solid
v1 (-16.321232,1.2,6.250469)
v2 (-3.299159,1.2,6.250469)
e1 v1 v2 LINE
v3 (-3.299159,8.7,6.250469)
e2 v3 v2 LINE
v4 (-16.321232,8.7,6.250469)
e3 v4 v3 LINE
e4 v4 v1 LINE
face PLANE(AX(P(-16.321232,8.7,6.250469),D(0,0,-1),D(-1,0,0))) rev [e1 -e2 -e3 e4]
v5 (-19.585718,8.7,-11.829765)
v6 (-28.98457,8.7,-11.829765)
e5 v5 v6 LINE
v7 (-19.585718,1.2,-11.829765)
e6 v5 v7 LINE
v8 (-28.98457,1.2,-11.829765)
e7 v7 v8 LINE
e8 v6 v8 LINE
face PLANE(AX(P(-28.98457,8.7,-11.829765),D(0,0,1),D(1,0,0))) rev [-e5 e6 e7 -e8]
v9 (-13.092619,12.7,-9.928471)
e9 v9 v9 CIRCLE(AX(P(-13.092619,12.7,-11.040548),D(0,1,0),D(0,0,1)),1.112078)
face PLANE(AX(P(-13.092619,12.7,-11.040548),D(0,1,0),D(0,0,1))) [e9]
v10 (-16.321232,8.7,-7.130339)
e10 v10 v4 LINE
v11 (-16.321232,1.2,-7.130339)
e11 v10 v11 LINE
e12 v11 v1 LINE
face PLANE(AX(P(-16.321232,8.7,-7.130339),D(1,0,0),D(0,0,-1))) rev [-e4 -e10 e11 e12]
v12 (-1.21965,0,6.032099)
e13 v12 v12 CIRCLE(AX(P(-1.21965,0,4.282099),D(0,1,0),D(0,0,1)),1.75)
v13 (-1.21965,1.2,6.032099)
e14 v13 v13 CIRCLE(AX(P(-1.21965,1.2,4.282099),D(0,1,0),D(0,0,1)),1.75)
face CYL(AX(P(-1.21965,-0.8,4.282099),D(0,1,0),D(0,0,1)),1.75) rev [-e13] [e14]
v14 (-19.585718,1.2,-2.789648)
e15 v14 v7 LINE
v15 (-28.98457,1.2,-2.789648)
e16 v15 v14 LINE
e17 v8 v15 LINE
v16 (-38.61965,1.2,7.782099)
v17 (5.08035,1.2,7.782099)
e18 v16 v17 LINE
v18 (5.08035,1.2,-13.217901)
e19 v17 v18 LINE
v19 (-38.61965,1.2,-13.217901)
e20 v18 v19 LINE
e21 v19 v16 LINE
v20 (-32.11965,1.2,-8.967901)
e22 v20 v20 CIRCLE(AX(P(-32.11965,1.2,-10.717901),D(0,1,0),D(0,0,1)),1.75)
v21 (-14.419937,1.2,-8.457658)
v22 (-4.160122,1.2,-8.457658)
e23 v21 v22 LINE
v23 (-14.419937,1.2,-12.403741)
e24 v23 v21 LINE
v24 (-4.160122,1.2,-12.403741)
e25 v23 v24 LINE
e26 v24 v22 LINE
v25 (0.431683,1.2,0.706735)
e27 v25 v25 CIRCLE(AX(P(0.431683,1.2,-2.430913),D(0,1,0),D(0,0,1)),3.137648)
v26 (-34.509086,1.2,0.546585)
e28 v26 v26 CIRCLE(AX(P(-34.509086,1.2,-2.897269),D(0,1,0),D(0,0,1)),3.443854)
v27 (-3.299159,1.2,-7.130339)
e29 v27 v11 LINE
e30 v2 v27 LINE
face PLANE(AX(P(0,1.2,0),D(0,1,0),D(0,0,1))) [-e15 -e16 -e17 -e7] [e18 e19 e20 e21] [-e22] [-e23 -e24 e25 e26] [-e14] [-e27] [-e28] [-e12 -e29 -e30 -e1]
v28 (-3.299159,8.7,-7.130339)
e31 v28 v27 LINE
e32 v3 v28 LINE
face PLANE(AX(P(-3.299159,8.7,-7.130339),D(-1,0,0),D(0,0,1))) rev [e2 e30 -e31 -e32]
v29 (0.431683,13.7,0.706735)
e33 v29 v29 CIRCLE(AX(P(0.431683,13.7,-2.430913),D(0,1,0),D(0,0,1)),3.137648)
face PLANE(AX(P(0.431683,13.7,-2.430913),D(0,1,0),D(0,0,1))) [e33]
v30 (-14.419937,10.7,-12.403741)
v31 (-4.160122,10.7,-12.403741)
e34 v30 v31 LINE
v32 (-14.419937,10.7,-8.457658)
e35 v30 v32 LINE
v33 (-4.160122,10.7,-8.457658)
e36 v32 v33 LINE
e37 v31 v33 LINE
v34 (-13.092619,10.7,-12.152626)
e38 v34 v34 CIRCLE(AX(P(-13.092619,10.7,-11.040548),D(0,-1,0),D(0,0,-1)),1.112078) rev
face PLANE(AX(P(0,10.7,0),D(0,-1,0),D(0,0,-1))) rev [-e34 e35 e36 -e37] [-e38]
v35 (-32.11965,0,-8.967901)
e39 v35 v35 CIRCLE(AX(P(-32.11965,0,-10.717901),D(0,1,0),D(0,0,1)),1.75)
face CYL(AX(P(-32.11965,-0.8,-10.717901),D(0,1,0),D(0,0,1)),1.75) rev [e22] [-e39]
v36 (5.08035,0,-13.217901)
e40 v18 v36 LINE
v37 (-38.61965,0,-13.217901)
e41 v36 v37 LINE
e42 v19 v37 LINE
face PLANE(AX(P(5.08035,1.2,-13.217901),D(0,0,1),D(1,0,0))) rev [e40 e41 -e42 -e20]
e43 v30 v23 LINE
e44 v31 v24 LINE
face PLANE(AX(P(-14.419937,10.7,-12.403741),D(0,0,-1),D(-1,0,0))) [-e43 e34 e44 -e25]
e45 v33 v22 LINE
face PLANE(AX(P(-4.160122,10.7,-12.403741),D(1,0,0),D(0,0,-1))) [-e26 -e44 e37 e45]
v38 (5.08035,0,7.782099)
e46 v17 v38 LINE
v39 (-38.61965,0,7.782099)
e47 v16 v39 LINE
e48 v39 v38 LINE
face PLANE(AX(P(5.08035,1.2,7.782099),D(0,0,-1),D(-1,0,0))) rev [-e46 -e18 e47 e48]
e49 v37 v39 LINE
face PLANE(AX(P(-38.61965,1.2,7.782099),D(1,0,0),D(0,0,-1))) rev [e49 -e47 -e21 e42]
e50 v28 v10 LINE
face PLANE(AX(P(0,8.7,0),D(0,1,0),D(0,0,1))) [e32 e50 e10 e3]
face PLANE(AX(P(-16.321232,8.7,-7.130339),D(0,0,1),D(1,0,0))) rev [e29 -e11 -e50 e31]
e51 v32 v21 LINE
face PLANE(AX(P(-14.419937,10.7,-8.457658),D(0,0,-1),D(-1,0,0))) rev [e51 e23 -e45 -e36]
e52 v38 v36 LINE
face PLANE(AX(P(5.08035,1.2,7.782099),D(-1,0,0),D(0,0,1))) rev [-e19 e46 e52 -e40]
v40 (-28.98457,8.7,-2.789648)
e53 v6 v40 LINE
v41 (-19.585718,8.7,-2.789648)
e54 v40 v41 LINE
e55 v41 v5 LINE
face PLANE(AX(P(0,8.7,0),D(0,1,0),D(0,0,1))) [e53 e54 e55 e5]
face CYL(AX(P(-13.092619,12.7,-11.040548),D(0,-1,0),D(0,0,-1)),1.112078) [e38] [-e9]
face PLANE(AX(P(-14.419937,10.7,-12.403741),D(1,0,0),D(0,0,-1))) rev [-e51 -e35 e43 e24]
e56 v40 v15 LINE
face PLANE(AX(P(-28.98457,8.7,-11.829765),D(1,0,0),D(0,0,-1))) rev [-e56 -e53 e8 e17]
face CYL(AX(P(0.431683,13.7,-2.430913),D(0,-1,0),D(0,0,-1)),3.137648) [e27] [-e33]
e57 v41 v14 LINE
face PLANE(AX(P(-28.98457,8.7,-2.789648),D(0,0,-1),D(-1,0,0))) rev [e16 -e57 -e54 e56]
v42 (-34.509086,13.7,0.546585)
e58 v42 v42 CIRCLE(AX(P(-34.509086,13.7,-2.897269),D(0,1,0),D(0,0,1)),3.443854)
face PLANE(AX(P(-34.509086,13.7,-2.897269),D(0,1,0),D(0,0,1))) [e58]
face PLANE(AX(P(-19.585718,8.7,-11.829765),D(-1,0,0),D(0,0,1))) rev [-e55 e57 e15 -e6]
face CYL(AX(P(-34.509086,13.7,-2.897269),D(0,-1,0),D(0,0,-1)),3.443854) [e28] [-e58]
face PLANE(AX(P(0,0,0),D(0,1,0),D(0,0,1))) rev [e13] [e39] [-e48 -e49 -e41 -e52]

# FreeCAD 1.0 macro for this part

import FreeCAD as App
import Part
import Sketcher

V = App.Vector

doc = App.newDocument("Part")
body = doc.addObject("PartDesign::Body", "Body")

# Sketch on XZ plane
sketch1 = doc.addObject("Sketcher::SketchObject", "Sketch")
body.addObject(sketch1)
sketch1.AttachmentSupport = (doc.XZ_Plane, [""])
sketch1.MapMode = "FlatFace"
sketch1.addGeometry([
    Part.LineSegment(V(-39, -13, 0), V(-39, 8, 0)),
    Part.LineSegment(V(-39, 8, 0), V(5, 8, 0)),
    Part.LineSegment(V(5, 8, 0), V(5, -13, 0)),
    Part.LineSegment(V(5, -13, 0), V(-39, -13, 0)),
], False)
sketch1.addConstraint([
    Sketcher.Constraint("Coincident", 0, 2, 1, 1),
    Sketcher.Constraint("Coincident", 1, 2, 2, 1),
    Sketcher.Constraint("Coincident", 2, 2, 3, 1),
    Sketcher.Constraint("Coincident", 3, 2, 0, 1),
    Sketcher.Constraint("Vertical", 0),
    Sketcher.Constraint("Horizontal", 1),
    Sketcher.Constraint("Vertical", 2),
    Sketcher.Constraint("Horizontal", 3),
    Sketcher.Constraint("DistanceY", 0, 1, 0, 2, 21.0),
    Sketcher.Constraint("DistanceX", 1, 1, 1, 2, 43.7),
    Sketcher.Constraint("DistanceY", -1, 1, 0, 2, 7.782099),
    Sketcher.Constraint("DistanceX", 0, 2, -1, 1, 38.61965),
])
pad1 = doc.addObject("PartDesign::Pad", "Pad")
body.addObject(pad1)
pad1.Profile = sketch1
pad1.Length = 1.2
pad1.Reversed = True

# Sketch on XZ plane
sketch2 = doc.addObject("Sketcher::SketchObject", "Sketch001")
body.addObject(sketch2)
sketch2.AttachmentSupport = (doc.XZ_Plane, [""])
sketch2.MapMode = "FlatFace"
sketch2.AttachmentOffset = App.Placement(V(0, 0, -1.2), App.Rotation())
sketch2.addGeometry([
    Part.Circle(V(-34.5, -2.9, 0), V(0, 0, 1), 3.4),
    Part.Circle(V(0.4, -2.4, 0), V(0, 0, 1), 3.1),
], False)
sketch2.addConstraint([
    Sketcher.Constraint("Diameter", 0, 6.887708),
    Sketcher.Constraint("Diameter", 1, 6.275296),
    Sketcher.Constraint("DistanceY", 0, 3, -1, 1, 2.897269),
    Sketcher.Constraint("DistanceX", 0, 3, 1, 3, 34.940769),
    Sketcher.Constraint("DistanceX", 0, 3, -1, 1, 34.509086),
    Sketcher.Constraint("DistanceY", 1, 3, -1, 1, 2.430913),
])
pad2 = doc.addObject("PartDesign::Pad", "Pad001")
body.addObject(pad2)
pad2.Profile = sketch2
pad2.Length = 12.5
pad2.Reversed = True

# Sketch on XZ plane
sketch3 = doc.addObject("Sketcher::SketchObject", "Sketch002")
body.addObject(sketch3)
sketch3.AttachmentSupport = (doc.XZ_Plane, [""])
sketch3.MapMode = "FlatFace"
sketch3.AttachmentOffset = App.Placement(V(0, 0, -1.2), App.Rotation())
sketch3.addGeometry([
    Part.LineSegment(V(-16, -7, 0), V(-16, 6, 0)),  # 0
    Part.LineSegment(V(-16, 6, 0), V(-3, 6, 0)),  # 1
    Part.LineSegment(V(-3, 6, 0), V(-3, -7, 0)),  # 2
    Part.LineSegment(V(-3, -7, 0), V(-16, -7, 0)),  # 3
    Part.LineSegment(V(-29, -12, 0), V(-29, -3, 0)),  # 4
    Part.LineSegment(V(-29, -3, 0), V(-20, -3, 0)),  # 5
    Part.LineSegment(V(-20, -3, 0), V(-20, -12, 0)),  # 6
    Part.LineSegment(V(-20, -12, 0), V(-29, -12, 0)),  # 7
], False)
sketch3.addConstraint([
    Sketcher.Constraint("Coincident", 0, 2, 1, 1),
    Sketcher.Constraint("Coincident", 1, 2, 2, 1),
    Sketcher.Constraint("Coincident", 2, 2, 3, 1),
    Sketcher.Constraint("Coincident", 3, 2, 0, 1),
    Sketcher.Constraint("Coincident", 4, 2, 5, 1),
    Sketcher.Constraint("Coincident", 5, 2, 6, 1),
    Sketcher.Constraint("Coincident", 6, 2, 7, 1),
    Sketcher.Constraint("Coincident", 7, 2, 4, 1),
    Sketcher.Constraint("Vertical", 0),
    Sketcher.Constraint("Horizontal", 1),
    Sketcher.Constraint("Vertical", 2),
    Sketcher.Constraint("Horizontal", 3),
    Sketcher.Constraint("Vertical", 4),
    Sketcher.Constraint("Horizontal", 5),
    Sketcher.Constraint("Vertical", 6),
    Sketcher.Constraint("Horizontal", 7),
    Sketcher.Constraint("DistanceX", 5, 1, 5, 2, 9.398852),
    Sketcher.Constraint("DistanceX", 1, 1, 1, 2, 13.022073),
    Sketcher.Constraint("DistanceY", 0, 1, 0, 2, 13.380808),
    Sketcher.Constraint("DistanceY", 4, 1, 4, 2, 9.040117),
    Sketcher.Constraint("DistanceX", 0, 2, -1, 1, 16.321232),
    Sketcher.Constraint("DistanceY", -1, 1, 0, 2, 6.250469),
    Sketcher.Constraint("DistanceX", 4, 2, -1, 1, 28.98457),
    Sketcher.Constraint("DistanceY", 4, 2, -1, 1, 2.789648),
])
pad3 = doc.addObject("PartDesign::Pad", "Pad002")
body.addObject(pad3)
pad3.Profile = sketch3
pad3.Length = 7.5
pad3.Reversed = True

# Sketch on XZ plane
sketch4 = doc.addObject("Sketcher::SketchObject", "Sketch003")
body.addObject(sketch4)
sketch4.AttachmentSupport = (doc.XZ_Plane, [""])
sketch4.MapMode = "FlatFace"
sketch4.AttachmentOffset = App.Placement(V(0, 0, -1.2), App.Rotation())
sketch4.addGeometry([
    Part.LineSegment(V(-14.4, -12.4, 0), V(-14.4, -8.5, 0)),
    Part.LineSegment(V(-14.4, -8.5, 0), V(-4.2, -8.5, 0)),
    Part.LineSegment(V(-4.2, -8.5, 0), V(-4.2, -12.4, 0)),
    Part.LineSegment(V(-4.2, -12.4, 0), V(-14.4, -12.4, 0)),
], False)
sketch4.addConstraint([
    Sketcher.Constraint("Coincident", 0, 2, 1, 1),
    Sketcher.Constraint("Coincident", 1, 2, 2, 1),
    Sketcher.Constraint("Coincident", 2, 2, 3, 1),
    Sketcher.Constraint("Coincident", 3, 2, 0, 1),
    Sketcher.Constraint("Vertical", 0),
    Sketcher.Constraint("Horizontal", 1),
    Sketcher.Constraint("Vertical", 2),
    Sketcher.Constraint("Horizontal", 3),
    Sketcher.Constraint("DistanceX", 1, 1, 1, 2, 10.259815),
    Sketcher.Constraint("DistanceY", 0, 1, 0, 2, 3.946083),
    Sketcher.Constraint("DistanceY", 2, 2, -1, 1, 12.403741),
    Sketcher.Constraint("DistanceX", 0, 2, -1, 1, 14.419937),
])
pad4 = doc.addObject("PartDesign::Pad", "Pad003")
body.addObject(pad4)
pad4.Profile = sketch4
pad4.Length = 9.5
pad4.Reversed = True

# Sketch on XZ plane
sketch5 = doc.addObject("Sketcher::SketchObject", "Sketch004")
body.addObject(sketch5)
sketch5.AttachmentSupport = (doc.XZ_Plane, [""])
sketch5.MapMode = "FlatFace"
sketch5.AttachmentOffset = App.Placement(V(0, 0, -10.7), App.Rotation())
sketch5.addGeometry(Part.Circle(V(-13.1, -11, 0), V(0, 0, 1), 1.1), False)
sketch5.addConstraint([
    Sketcher.Constraint("Diameter", 0, 2.224156),
    Sketcher.Constraint("DistanceX", 0, 3, -1, 1, 13.092619),
    Sketcher.Constraint("DistanceY", 0, 3, -1, 1, 11.040548),
])
pad5 = doc.addObject("PartDesign::Pad", "Pad004")
body.addObject(pad5)
pad5.Profile = sketch5
pad5.Length = 2
pad5.Reversed = True

# Sketch on XZ plane
sketch6 = doc.addObject("Sketcher::SketchObject", "Sketch005")
body.addObject(sketch6)
sketch6.AttachmentSupport = (doc.XZ_Plane, [""])
sketch6.MapMode = "FlatFace"
sketch6.AttachmentOffset = App.Placement(V(0, 0, -1.2), App.Rotation())
sketch6.addGeometry([
    Part.Circle(V(-32.1, -10.7, 0), V(0, 0, 1), 1.8),
    Part.Circle(V(-1.2, 4.3, 0), V(0, 0, 1), 1.8),
], False)
sketch6.addConstraint([
    Sketcher.Constraint("Equal", 0, 1),
    Sketcher.Constraint("Diameter", 0, 3.5),
    Sketcher.Constraint("DistanceY", 0, 3, 1, 3, 15.0),
    Sketcher.Constraint("DistanceX", 0, 3, 1, 3, 30.9),
    Sketcher.Constraint("DistanceY", 0, 3, -1, 1, 10.717901),
    Sketcher.Constraint("DistanceX", 0, 3, -1, 1, 32.11965),
])
pocket1 = doc.addObject("PartDesign::Pocket", "Pocket")
body.addObject(pocket1)
pocket1.Profile = sketch6
pocket1.Length = 2
pocket1.Reversed = True

doc.recompute()
